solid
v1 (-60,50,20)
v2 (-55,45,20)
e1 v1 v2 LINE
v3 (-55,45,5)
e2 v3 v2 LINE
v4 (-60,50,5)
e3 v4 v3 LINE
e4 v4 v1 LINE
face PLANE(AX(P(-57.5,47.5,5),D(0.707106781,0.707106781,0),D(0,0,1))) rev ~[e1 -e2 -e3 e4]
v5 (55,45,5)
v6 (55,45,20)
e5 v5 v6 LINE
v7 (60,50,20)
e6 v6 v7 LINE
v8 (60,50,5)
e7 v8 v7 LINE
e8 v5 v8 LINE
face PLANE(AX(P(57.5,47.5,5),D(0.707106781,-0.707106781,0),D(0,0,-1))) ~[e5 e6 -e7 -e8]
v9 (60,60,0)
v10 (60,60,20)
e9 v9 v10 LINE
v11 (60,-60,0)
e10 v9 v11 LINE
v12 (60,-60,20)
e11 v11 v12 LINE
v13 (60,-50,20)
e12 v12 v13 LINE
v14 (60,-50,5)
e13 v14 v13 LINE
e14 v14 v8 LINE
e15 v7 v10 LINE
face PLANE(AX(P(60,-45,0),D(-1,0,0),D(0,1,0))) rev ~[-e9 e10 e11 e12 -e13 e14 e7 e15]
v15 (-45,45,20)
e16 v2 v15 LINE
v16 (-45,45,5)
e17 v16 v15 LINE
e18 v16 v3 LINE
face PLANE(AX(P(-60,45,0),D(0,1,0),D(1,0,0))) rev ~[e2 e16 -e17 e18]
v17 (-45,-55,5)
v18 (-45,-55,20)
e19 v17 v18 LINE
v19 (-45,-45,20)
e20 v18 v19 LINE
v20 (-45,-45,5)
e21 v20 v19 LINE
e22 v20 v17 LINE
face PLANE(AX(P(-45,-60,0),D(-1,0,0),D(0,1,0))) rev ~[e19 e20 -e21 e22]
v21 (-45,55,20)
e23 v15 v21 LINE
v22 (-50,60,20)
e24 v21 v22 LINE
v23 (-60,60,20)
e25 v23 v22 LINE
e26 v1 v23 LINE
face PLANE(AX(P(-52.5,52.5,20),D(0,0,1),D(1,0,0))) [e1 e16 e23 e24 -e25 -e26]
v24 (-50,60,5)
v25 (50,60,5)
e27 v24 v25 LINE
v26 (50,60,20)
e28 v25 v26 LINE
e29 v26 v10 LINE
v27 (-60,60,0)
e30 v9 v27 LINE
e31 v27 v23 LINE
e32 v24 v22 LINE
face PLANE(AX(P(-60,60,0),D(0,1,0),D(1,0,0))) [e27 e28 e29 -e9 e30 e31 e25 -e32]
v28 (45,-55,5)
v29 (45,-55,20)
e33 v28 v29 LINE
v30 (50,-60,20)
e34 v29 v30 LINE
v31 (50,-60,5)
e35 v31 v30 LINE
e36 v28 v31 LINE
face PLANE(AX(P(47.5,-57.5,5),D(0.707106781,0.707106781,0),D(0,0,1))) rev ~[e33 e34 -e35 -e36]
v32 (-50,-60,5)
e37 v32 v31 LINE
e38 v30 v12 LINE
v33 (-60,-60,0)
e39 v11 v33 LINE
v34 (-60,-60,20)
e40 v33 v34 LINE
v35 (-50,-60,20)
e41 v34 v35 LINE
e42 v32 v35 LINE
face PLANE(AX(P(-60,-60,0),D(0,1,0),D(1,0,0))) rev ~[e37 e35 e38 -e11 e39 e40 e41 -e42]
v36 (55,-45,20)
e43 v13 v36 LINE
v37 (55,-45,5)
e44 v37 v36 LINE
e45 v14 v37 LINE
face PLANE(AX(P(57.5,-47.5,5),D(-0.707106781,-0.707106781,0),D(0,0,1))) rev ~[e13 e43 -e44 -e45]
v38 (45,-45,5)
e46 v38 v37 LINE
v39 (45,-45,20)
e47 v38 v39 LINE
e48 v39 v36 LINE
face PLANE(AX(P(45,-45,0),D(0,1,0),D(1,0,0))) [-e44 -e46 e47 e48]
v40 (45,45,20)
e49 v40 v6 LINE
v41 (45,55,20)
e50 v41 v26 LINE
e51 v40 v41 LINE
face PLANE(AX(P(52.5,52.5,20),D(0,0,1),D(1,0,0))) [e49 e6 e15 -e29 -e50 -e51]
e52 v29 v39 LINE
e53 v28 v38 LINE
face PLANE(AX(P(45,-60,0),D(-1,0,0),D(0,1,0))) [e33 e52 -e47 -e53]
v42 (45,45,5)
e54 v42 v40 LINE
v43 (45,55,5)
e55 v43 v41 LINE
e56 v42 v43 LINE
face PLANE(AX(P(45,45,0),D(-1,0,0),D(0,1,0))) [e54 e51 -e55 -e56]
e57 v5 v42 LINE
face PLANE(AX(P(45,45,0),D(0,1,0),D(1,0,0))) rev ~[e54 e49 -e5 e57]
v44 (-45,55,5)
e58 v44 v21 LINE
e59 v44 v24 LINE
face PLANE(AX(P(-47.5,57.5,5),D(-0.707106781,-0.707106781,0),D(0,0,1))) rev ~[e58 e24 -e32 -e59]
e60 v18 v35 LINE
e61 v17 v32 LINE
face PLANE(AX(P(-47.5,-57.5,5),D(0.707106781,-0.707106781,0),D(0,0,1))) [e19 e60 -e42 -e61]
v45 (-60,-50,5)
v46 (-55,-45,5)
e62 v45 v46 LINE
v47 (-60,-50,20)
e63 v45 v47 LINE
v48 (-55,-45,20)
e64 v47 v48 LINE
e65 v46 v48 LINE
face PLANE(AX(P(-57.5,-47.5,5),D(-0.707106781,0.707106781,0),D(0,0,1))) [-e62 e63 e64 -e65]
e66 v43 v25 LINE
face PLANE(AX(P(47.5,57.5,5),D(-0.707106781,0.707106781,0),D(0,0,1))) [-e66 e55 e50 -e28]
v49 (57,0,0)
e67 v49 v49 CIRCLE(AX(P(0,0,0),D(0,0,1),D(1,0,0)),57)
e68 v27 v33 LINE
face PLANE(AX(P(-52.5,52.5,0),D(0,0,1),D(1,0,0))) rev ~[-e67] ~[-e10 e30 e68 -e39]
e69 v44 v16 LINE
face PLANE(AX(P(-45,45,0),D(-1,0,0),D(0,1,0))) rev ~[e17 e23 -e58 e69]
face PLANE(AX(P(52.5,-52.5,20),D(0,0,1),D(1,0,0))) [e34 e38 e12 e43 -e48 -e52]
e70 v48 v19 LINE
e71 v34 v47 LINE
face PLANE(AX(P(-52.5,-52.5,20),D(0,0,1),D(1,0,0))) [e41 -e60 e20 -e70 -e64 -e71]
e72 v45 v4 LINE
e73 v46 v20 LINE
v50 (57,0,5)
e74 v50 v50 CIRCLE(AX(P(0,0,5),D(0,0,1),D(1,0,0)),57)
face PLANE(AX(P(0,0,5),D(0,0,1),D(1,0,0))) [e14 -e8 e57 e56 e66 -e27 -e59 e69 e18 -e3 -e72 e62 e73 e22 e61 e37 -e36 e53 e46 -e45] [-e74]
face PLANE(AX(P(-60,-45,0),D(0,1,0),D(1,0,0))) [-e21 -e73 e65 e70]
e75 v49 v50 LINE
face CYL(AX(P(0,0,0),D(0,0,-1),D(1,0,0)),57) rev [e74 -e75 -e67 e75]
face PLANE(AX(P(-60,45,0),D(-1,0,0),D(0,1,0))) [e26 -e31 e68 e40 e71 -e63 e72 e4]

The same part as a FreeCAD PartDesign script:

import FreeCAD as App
import Part
import Sketcher
Q = App.Units.Quantity


def edges_at(feature, points):
    """Names of the edges that pass closest to the given points."""
    edges = feature.Shape.Edges
    near = lambda p: min(range(len(edges)), key=lambda i: edges[i].distToShape(Part.Vertex(*p))[0])
    return sorted({f"Edge{near(p) + 1}" for p in points})


def add_polygon(sketch, points):
    """Adds a closed chain of lines whose ends are joined by coincident constraints."""
    first, n = sketch.GeometryCount, len(points)
    for a, b in zip(points, points[1:] + points[:1]):
        sketch.addGeometry(Part.LineSegment(App.Vector(*a, 0), App.Vector(*b, 0)), False)
    for i in range(n):
        sketch.addConstraint(Sketcher.Constraint("Coincident", first + i, 2, first + (i + 1) % n, 1))

doc = App.newDocument("Part")
body = doc.addObject("PartDesign::Body", "Body")

sketch1 = doc.addObject("Sketcher::SketchObject", "Sketch")
body.addObject(sketch1)
sketch1.AttachmentSupport = (doc.XY_Plane, [""])
sketch1.MapMode = "FlatFace"
add_polygon(sketch1, [(-45, -60), (45, -60), (45, -45), (60, -45), (60, 45), (45, 45), (45, 60), (-45, 60), (-45, 45), (-60, 45), (-60, -45), (-45, -45)])
sketch1.addGeometry(Part.Circle(App.Vector(0, 0, 0), App.Vector(0, 0, 1), 57), False)
sketch1.addConstraint([
    Sketcher.Constraint("Horizontal", 0),
    Sketcher.Constraint("Vertical", 1),
    Sketcher.Constraint("Horizontal", 2),
    Sketcher.Constraint("Vertical", 3),
    Sketcher.Constraint("Horizontal", 4),
    Sketcher.Constraint("Vertical", 5),
    Sketcher.Constraint("Horizontal", 6),
    Sketcher.Constraint("Vertical", 7),
    Sketcher.Constraint("Horizontal", 8),
    Sketcher.Constraint("Vertical", 9),
    Sketcher.Constraint("Horizontal", 10),
    Sketcher.Constraint("Vertical", 11),
    Sketcher.Constraint("Coincident", 12, 3, -1, 1),
    Sketcher.Constraint("Symmetric", 0, 2, 6, 2, -1, 1),
    Sketcher.Constraint("Symmetric", 2, 2, 8, 2, -1, 1),
    Sketcher.Constraint("Symmetric", 4, 2, 10, 2, -1, 1),
    Sketcher.Constraint("Symmetric", 4, 2, 7, 2, -2),
    Sketcher.Constraint("Equal", 10, 1),
    Sketcher.Constraint("Equal", 6, 3),
    Sketcher.Constraint("Diameter", 12, Q("114 mm")),
    Sketcher.Constraint("DistanceX", 0, 1, 0, 2, Q("90 mm")),
    Sketcher.Constraint("DistanceX", 2, 1, 2, 2, Q("15 mm")),
])
pad1 = doc.addObject("PartDesign::Pad", "Pad")
body.addObject(pad1)
pad1.Profile = sketch1
pad1.Length = 5

sketch2 = doc.addObject("Sketcher::SketchObject", "Sketch001")
body.addObject(sketch2)
sketch2.AttachmentSupport = (doc.XY_Plane, [""])
sketch2.MapMode = "FlatFace"
add_polygon(sketch2, [(-60, 60), (-60, 45), (-45, 45), (-45, 60)])
add_polygon(sketch2, [(45, 60), (45, 45), (60, 45), (60, 60)])
add_polygon(sketch2, [(45, -45), (45, -60), (60, -60), (60, -45)])
add_polygon(sketch2, [(-60, -45), (-60, -60), (-45, -60), (-45, -45)])
sketch2.addConstraint([
    Sketcher.Constraint("Vertical", 0),
    Sketcher.Constraint("Horizontal", 1),
    Sketcher.Constraint("Vertical", 2),
    Sketcher.Constraint("Horizontal", 3),
    Sketcher.Constraint("Vertical", 4),
    Sketcher.Constraint("Horizontal", 5),
    Sketcher.Constraint("Vertical", 6),
    Sketcher.Constraint("Horizontal", 7),
    Sketcher.Constraint("Vertical", 8),
    Sketcher.Constraint("Horizontal", 9),
    Sketcher.Constraint("Vertical", 10),
    Sketcher.Constraint("Horizontal", 11),
    Sketcher.Constraint("Vertical", 12),
    Sketcher.Constraint("Horizontal", 13),
    Sketcher.Constraint("Vertical", 14),
    Sketcher.Constraint("Horizontal", 15),
    Sketcher.Constraint("Symmetric", 2, 2, 8, 2, -1, 1),
    Sketcher.Constraint("Symmetric", 0, 2, 10, 2, -1, 1),
    Sketcher.Constraint("Symmetric", 6, 2, 12, 2, -1, 1),
    Sketcher.Constraint("Symmetric", 4, 2, 14, 2, -1, 1),
    Sketcher.Constraint("Symmetric", 1, 2, 4, 2, -2),
    Sketcher.Constraint("Symmetric", 3, 2, 6, 2, -2),
    Sketcher.Constraint("Equal", 15, 0),
    Sketcher.Constraint("DistanceX", 1, 1, 1, 2, Q("15 mm")),
    Sketcher.Constraint("DistanceX", 0, 2, -1, 1, Q("60 mm")),
    Sketcher.Constraint("DistanceY", -1, 1, 0, 2, Q("45 mm")),
])
pad2 = doc.addObject("PartDesign::Pad", "Pad001")
body.addObject(pad2)
pad2.Profile = sketch2
pad2.Length = 20
doc.recompute()

chamfer = doc.addObject("PartDesign::Chamfer", "Chamfer")
body.addObject(chamfer)
chamfer.Base = (pad2, edges_at(pad2, [
    (-60, -45, 12.5),
    (-45, -60, 12.5),
    (45, -60, 12.5),
    (60, -45, 12.5),
    (45, 60, 12.5),
    (60, 45, 12.5),
    (-60, 45, 12.5),
    (-45, 60, 12.5),
]))
chamfer.Size = 5

doc.recompute()
